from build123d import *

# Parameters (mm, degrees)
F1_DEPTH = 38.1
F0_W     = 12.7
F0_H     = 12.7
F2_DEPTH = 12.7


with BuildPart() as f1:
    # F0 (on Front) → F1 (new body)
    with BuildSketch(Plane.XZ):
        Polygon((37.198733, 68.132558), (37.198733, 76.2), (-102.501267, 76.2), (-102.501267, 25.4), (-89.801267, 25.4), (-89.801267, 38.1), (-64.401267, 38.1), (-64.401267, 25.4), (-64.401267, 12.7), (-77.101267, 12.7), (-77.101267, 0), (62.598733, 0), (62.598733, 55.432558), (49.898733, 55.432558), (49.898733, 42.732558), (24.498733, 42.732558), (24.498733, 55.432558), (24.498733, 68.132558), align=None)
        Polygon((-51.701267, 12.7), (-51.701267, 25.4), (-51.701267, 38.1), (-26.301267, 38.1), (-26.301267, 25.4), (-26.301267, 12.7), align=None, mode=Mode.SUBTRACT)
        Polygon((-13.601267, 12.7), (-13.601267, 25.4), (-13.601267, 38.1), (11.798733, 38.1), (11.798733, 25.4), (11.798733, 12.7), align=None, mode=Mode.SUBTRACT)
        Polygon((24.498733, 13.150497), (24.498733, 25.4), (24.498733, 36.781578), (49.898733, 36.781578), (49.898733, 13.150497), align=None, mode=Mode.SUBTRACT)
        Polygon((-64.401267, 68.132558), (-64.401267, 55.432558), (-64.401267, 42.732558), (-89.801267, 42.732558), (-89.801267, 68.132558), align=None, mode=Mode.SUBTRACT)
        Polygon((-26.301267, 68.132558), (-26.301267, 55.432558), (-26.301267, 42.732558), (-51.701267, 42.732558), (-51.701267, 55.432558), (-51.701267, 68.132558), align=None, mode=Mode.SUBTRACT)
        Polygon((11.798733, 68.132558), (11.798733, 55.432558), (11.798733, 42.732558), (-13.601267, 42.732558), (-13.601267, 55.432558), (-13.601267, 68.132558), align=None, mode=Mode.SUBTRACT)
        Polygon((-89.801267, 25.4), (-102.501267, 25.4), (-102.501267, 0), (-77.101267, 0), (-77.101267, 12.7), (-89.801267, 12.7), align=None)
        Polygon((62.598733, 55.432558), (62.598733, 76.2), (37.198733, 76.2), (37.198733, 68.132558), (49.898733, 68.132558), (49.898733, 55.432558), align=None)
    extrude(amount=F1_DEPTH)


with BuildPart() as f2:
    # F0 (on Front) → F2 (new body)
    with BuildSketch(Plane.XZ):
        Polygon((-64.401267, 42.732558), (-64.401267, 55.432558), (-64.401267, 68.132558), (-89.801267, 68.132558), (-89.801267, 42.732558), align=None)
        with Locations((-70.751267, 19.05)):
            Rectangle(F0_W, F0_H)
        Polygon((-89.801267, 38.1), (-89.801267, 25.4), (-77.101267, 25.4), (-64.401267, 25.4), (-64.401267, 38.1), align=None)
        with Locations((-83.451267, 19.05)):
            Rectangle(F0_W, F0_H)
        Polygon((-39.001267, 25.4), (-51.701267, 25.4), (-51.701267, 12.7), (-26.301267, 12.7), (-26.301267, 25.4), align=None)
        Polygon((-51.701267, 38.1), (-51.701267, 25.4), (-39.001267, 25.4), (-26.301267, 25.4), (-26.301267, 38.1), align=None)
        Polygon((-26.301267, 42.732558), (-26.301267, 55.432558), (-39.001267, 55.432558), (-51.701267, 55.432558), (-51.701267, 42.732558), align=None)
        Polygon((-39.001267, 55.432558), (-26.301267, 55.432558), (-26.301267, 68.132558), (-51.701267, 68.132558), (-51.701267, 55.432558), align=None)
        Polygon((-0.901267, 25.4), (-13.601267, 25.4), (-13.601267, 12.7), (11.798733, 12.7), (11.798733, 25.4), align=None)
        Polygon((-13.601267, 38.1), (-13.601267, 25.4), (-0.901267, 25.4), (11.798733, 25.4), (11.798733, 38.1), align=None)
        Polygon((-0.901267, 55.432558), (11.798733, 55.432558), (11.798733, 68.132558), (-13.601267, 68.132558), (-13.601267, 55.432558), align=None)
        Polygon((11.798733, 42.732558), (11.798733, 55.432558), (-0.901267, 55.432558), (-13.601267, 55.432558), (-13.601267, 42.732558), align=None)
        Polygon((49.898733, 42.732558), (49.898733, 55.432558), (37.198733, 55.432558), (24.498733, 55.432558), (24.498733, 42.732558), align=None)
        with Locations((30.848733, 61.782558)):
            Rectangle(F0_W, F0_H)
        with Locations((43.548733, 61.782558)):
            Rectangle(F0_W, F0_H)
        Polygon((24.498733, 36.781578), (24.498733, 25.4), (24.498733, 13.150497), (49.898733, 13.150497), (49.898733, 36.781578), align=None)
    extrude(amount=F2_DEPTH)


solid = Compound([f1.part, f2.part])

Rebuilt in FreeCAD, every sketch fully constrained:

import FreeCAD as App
import Part
import Sketcher
Q = App.Units.Quantity


def add_polygon(sketch, points):
    """Adds a closed chain of lines whose ends are joined by coincident constraints."""
    first, n = sketch.GeometryCount, len(points)
    for a, b in zip(points, points[1:] + points[:1]):
        sketch.addGeometry(Part.LineSegment(App.Vector(*a, 0), App.Vector(*b, 0)), False)
    for i in range(n):
        sketch.addConstraint(Sketcher.Constraint("Coincident", first + i, 2, first + (i + 1) % n, 1))

doc = App.newDocument("Part")
body = doc.addObject("PartDesign::Body", "Body")

sketch1 = body.newObject("Sketcher::SketchObject", "Sketch")
sketch1.AttachmentSupport = (doc.getObject("XZ_Plane"), [""])
sketch1.MapMode = "FlatFace"
add_polygon(sketch1, [(-102.501267, 76.2), (-102.501267, 0), (62.598733, 0), (62.598733, 76.2)])
add_polygon(sketch1, [(49.898733, 42.732558), (24.498733, 42.732558), (24.498733, 68.132558), (49.898733, 68.132558)])
add_polygon(sketch1, [(-89.801267, 38.1), (-64.401267, 38.1), (-64.401267, 12.7), (-89.801267, 12.7)])
add_polygon(sketch1, [(-26.301267, 12.7), (-51.701267, 12.7), (-51.701267, 38.1), (-26.301267, 38.1)])
add_polygon(sketch1, [(11.798733, 12.7), (-13.601267, 12.7), (-13.601267, 38.1), (11.798733, 38.1)])
add_polygon(sketch1, [(49.898733, 13.150497), (24.498733, 13.150497), (24.498733, 36.781578), (49.898733, 36.781578)])
add_polygon(sketch1, [(-89.801267, 68.132558), (-64.401267, 68.132558), (-64.401267, 42.732558), (-89.801267, 42.732558)])
add_polygon(sketch1, [(-51.701267, 68.132558), (-26.301267, 68.132558), (-26.301267, 42.732558), (-51.701267, 42.732558)])
add_polygon(sketch1, [(-13.601267, 68.132558), (11.798733, 68.132558), (11.798733, 42.732558), (-13.601267, 42.732558)])
sketch1.addConstraint([
    Sketcher.Constraint("Vertical", 0),
    Sketcher.Constraint("Horizontal", 1),
    Sketcher.Constraint("Vertical", 2),
    Sketcher.Constraint("Horizontal", 3),
    Sketcher.Constraint("Horizontal", 4),
    Sketcher.Constraint("Vertical", 5),
    Sketcher.Constraint("Horizontal", 6),
    Sketcher.Constraint("Vertical", 7),
    Sketcher.Constraint("Horizontal", 8),
    Sketcher.Constraint("Vertical", 9),
    Sketcher.Constraint("Horizontal", 10),
    Sketcher.Constraint("Vertical", 11),
    Sketcher.Constraint("Horizontal", 12),
    Sketcher.Constraint("Vertical", 13),
    Sketcher.Constraint("Horizontal", 14),
    Sketcher.Constraint("Vertical", 15),
    Sketcher.Constraint("Horizontal", 16),
    Sketcher.Constraint("Vertical", 17),
    Sketcher.Constraint("Horizontal", 18),
    Sketcher.Constraint("Vertical", 19),
    Sketcher.Constraint("Horizontal", 20),
    Sketcher.Constraint("Vertical", 21),
    Sketcher.Constraint("Horizontal", 22),
    Sketcher.Constraint("Vertical", 23),
    Sketcher.Constraint("Horizontal", 24),
    Sketcher.Constraint("Vertical", 25),
    Sketcher.Constraint("Horizontal", 26),
    Sketcher.Constraint("Vertical", 27),
    Sketcher.Constraint("Horizontal", 28),
    Sketcher.Constraint("Vertical", 29),
    Sketcher.Constraint("Horizontal", 30),
    Sketcher.Constraint("Vertical", 31),
    Sketcher.Constraint("Horizontal", 32),
    Sketcher.Constraint("Vertical", 33),
    Sketcher.Constraint("Horizontal", 34),
    Sketcher.Constraint("Vertical", 35),
    Sketcher.Constraint("PointOnObject", 0, 2, -1),
    Sketcher.Constraint("Horizontal", 10, 2, 12, 2),
    Sketcher.Constraint("Horizontal", 11, 2, 13, 2),
    Sketcher.Constraint("Horizontal", 15, 2, 16, 2),
    Sketcher.Constraint("Horizontal", 14, 2, 17, 2),
    Sketcher.Constraint("Horizontal", 6, 2, 24, 2),
    Sketcher.Constraint("Horizontal", 7, 2, 25, 2),
    Sketcher.Constraint("Horizontal", 27, 2, 28, 2),
    Sketcher.Constraint("Horizontal", 26, 2, 29, 2),
    Sketcher.Constraint("Horizontal", 31, 2, 32, 2),
    Sketcher.Constraint("Horizontal", 30, 2, 33, 2),
    Sketcher.Constraint("Vertical", 5, 2, 20, 2),
    Sketcher.Constraint("Vertical", 7, 2, 22, 2),
    Sketcher.Constraint("Vertical", 9, 2, 24, 2),
    Sketcher.Constraint("Vertical", 11, 2, 26, 2),
    Sketcher.Constraint("Vertical", 15, 2, 28, 2),
    Sketcher.Constraint("Vertical", 13, 2, 30, 2),
    Sketcher.Constraint("Vertical", 19, 2, 32, 2),
    Sketcher.Constraint("Vertical", 17, 2, 34, 2),
    Sketcher.Constraint("Equal", 6, 8),
    Sketcher.Constraint("Equal", 10, 12),
    Sketcher.Constraint("Equal", 14, 16),
    Sketcher.Constraint("Equal", 34, 5),
    Sketcher.Constraint("Equal", 7, 9),
    Sketcher.Constraint("DistanceX", 4, 2, 4, 1, Q("1 in")),
    Sketcher.Constraint("DistanceY", 0, 2, 0, 1, Q("3 in")),
    Sketcher.Constraint("DistanceX", 1, 1, 1, 2, Q("6.5 in")),
    Sketcher.Constraint("DistanceX", 3, 2, 4, 2, Q("5 in")),
    Sketcher.Constraint("DistanceX", 0, 2, 12, 2, Q("2 in")),
    Sketcher.Constraint("DistanceY", -1, 1, 8, 2, Q("1.5 in")),
    Sketcher.Constraint("DistanceX", 0, 2, 8, 2, Q("1.5 in")),
    Sketcher.Constraint("DistanceX", 15, 2, 16, 2, Q("0.5 in")),
    Sketcher.Constraint("DistanceY", 21, 1, 21, 2, 23.631081),
    Sketcher.Constraint("DistanceY", -1, 1, 5, 2, 68.132558),
    Sketcher.Constraint("DistanceY", -1, 1, 21, 2, 36.781578),
    Sketcher.Constraint("DistanceX", 0, 2, -1, 1, 102.501267),
])
pad1 = body.newObject("PartDesign::Pad", "Pad")
pad1.Profile = sketch1
pad1.Length = Q("1.5 in")
body2 = doc.addObject("PartDesign::Body", "Body001")
body2.AllowCompound = True

sketch2 = body2.newObject("Sketcher::SketchObject", "Sketch001")
sketch2.AttachmentSupport = (doc.getObject("XZ_Plane001"), [""])
sketch2.MapMode = "FlatFace"
add_polygon(sketch2, [(-64.401267, 42.732558), (-64.401267, 68.132558), (-89.801267, 68.132558), (-89.801267, 42.732558)])
add_polygon(sketch2, [(-64.401267, 12.7), (-64.401267, 38.1), (-89.801267, 38.1), (-89.801267, 12.7)])
add_polygon(sketch2, [(-51.701267, 12.7), (-26.301267, 12.7), (-26.301267, 38.1), (-51.701267, 38.1)])
add_polygon(sketch2, [(-26.301267, 42.732558), (-26.301267, 68.132558), (-51.701267, 68.132558), (-51.701267, 42.732558)])
add_polygon(sketch2, [(-13.601267, 12.7), (11.798733, 12.7), (11.798733, 38.1), (-13.601267, 38.1)])
add_polygon(sketch2, [(11.798733, 68.132558), (-13.601267, 68.132558), (-13.601267, 42.732558), (11.798733, 42.732558)])
add_polygon(sketch2, [(49.898733, 42.732558), (49.898733, 68.132558), (24.498733, 68.132558), (24.498733, 42.732558)])
add_polygon(sketch2, [(24.498733, 36.781578), (24.498733, 13.150497), (49.898733, 13.150497), (49.898733, 36.781578)])
sketch2.addConstraint([
    Sketcher.Constraint("Vertical", 0),
    Sketcher.Constraint("Horizontal", 1),
    Sketcher.Constraint("Vertical", 2),
    Sketcher.Constraint("Horizontal", 3),
    Sketcher.Constraint("Vertical", 4),
    Sketcher.Constraint("Horizontal", 5),
    Sketcher.Constraint("Vertical", 6),
    Sketcher.Constraint("Horizontal", 7),
    Sketcher.Constraint("Horizontal", 8),
    Sketcher.Constraint("Vertical", 9),
    Sketcher.Constraint("Horizontal", 10),
    Sketcher.Constraint("Vertical", 11),
    Sketcher.Constraint("Vertical", 12),
    Sketcher.Constraint("Horizontal", 13),
    Sketcher.Constraint("Vertical", 14),
    Sketcher.Constraint("Horizontal", 15),
    Sketcher.Constraint("Horizontal", 16),
    Sketcher.Constraint("Vertical", 17),
    Sketcher.Constraint("Horizontal", 18),
    Sketcher.Constraint("Vertical", 19),
    Sketcher.Constraint("Horizontal", 20),
    Sketcher.Constraint("Vertical", 21),
    Sketcher.Constraint("Horizontal", 22),
    Sketcher.Constraint("Vertical", 23),
    Sketcher.Constraint("Vertical", 24),
    Sketcher.Constraint("Horizontal", 25),
    Sketcher.Constraint("Vertical", 26),
    Sketcher.Constraint("Horizontal", 27),
    Sketcher.Constraint("Vertical", 28),
    Sketcher.Constraint("Horizontal", 29),
    Sketcher.Constraint("Vertical", 30),
    Sketcher.Constraint("Horizontal", 31),
    Sketcher.Constraint("Horizontal", 7, 2, 8, 2),
    Sketcher.Constraint("Horizontal", 5, 2, 9, 2),
    Sketcher.Constraint("Horizontal", 1, 2, 12, 2),
    Sketcher.Constraint("Horizontal", 3, 2, 14, 2),
    Sketcher.Constraint("Horizontal", 11, 2, 16, 2),
    Sketcher.Constraint("Horizontal", 10, 2, 17, 2),
    Sketcher.Constraint("Horizontal", 13, 2, 20, 2),
    Sketcher.Constraint("Horizontal", 15, 2, 21, 2),
    Sketcher.Constraint("Horizontal", 23, 2, 24, 2),
    Sketcher.Constraint("Horizontal", 22, 2, 26, 2),
    Sketcher.Constraint("Vertical", 3, 2, 4, 2),
    Sketcher.Constraint("Vertical", 2, 2, 5, 2),
    Sketcher.Constraint("Vertical", 9, 2, 12, 2),
    Sketcher.Constraint("Vertical", 11, 2, 13, 2),
    Sketcher.Constraint("Vertical", 19, 2, 20, 2),
    Sketcher.Constraint("Vertical", 17, 2, 22, 2),
    Sketcher.Constraint("Vertical", 26, 2, 28, 2),
    Sketcher.Constraint("Vertical", 27, 2, 29, 2),
    Sketcher.Constraint("Equal", 7, 8),
    Sketcher.Constraint("Equal", 15, 16),
    Sketcher.Constraint("Equal", 22, 25),
    Sketcher.Constraint("Equal", 31, 0),
    Sketcher.Constraint("Equal", 2, 4),
    Sketcher.Constraint("DistanceX", 1, 2, 1, 1, Q("1 in")),
    Sketcher.Constraint("DistanceY", -1, 1, 4, 2, Q("1.5 in")),
    Sketcher.Constraint("DistanceX", 7, 2, 8, 2, Q("1.5 in")),
    Sketcher.Constraint("DistanceX", 8, 2, 16, 2, Q("1.5 in")),
    Sketcher.Constraint("DistanceX", 23, 2, 24, 2, Q("1.5 in")),
    Sketcher.Constraint("DistanceY", 28, 2, 28, 1, 23.631081),
    Sketcher.Constraint("DistanceY", -1, 1, 0, 2, 68.132558),
    Sketcher.Constraint("DistanceY", -1, 1, 30, 2, 36.781578),
    Sketcher.Constraint("DistanceX", 0, 2, -1, 1, 64.401267),
])
pad2 = body2.newObject("PartDesign::Pad", "Pad001")
pad2.Profile = sketch2
pad2.Length = Q("0.5 in")

doc.recompute()
